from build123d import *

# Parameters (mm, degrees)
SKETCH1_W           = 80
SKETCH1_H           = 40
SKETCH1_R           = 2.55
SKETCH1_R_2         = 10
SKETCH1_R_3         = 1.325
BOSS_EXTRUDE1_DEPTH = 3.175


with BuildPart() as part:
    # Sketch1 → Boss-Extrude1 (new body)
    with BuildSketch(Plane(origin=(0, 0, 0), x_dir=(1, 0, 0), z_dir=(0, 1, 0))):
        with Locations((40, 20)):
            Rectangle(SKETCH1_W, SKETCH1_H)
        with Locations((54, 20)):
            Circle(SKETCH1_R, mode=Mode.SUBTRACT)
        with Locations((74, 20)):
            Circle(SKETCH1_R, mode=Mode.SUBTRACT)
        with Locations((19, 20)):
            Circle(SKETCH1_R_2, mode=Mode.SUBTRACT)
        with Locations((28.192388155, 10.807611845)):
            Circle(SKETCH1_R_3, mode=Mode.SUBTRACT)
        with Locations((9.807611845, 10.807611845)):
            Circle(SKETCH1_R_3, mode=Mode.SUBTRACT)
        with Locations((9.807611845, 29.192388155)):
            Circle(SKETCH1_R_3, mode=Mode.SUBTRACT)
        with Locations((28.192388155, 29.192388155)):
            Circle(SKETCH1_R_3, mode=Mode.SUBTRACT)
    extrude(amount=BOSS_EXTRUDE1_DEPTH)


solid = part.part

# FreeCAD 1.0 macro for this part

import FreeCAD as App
import Part
import Sketcher

V = App.Vector
Q = App.Units.Quantity


def add_polygon(sketch, points):
    """Adds a closed chain of lines whose ends are joined by coincident constraints."""
    first, n = sketch.GeometryCount, len(points)
    for a, b in zip(points, points[1:] + points[:1]):
        sketch.addGeometry(Part.LineSegment(App.Vector(*a, 0), App.Vector(*b, 0)), False)
    for i in range(n):
        sketch.addConstraint(Sketcher.Constraint("Coincident", first + i, 2, first + (i + 1) % n, 1))

doc = App.newDocument("Part")
body = doc.addObject("PartDesign::Body", "Body")

sketch1 = body.newObject("Sketcher::SketchObject", "Sketch")
sketch1.AttachmentSupport = (doc.getObject("XZ_Plane"), [""])
sketch1.MapMode = "FlatFace"
add_polygon(sketch1, [(0, -40), (0, 0), (80, 0), (80, -40)])
sketch1.addGeometry(Part.Circle(V(9.807612, -10.807612, 0), V(0, 0, 1), 1.325), False)
sketch1.addGeometry(Part.Circle(V(28.192388, -10.807612, 0), V(0, 0, 1), 1.325), False)
sketch1.addGeometry(Part.Circle(V(19, -20, 0), V(0, 0, 1), 10), False)
sketch1.addGeometry(Part.Circle(V(9.807612, -29.192388, 0), V(0, 0, 1), 1.325), False)
sketch1.addGeometry(Part.Circle(V(28.192388, -29.192388, 0), V(0, 0, 1), 1.325), False)
sketch1.addGeometry(Part.Circle(V(54, -20, 0), V(0, 0, 1), 2.55), False)
sketch1.addGeometry(Part.Circle(V(74, -20, 0), V(0, 0, 1), 2.55), False)
sketch1.addConstraint(Sketcher.Constraint("Vertical", 0))
sketch1.addConstraint(Sketcher.Constraint("Horizontal", 1))
sketch1.addConstraint(Sketcher.Constraint("Vertical", 2))
sketch1.addConstraint(Sketcher.Constraint("Horizontal", 3))
sketch1.addConstraint(Sketcher.Constraint("Coincident", 0, 2, -1, 1))
sketch1.addConstraint(Sketcher.Constraint("Equal", 4, 5))
sketch1.addConstraint(Sketcher.Constraint("Equal", 5, 7))
sketch1.addConstraint(Sketcher.Constraint("Equal", 7, 8))
sketch1.addConstraint(Sketcher.Constraint("Equal", 9, 10))
sketch1.addConstraint(Sketcher.Constraint("Horizontal", 4, 3, 5, 3))
sketch1.addConstraint(Sketcher.Constraint("Horizontal", 7, 3, 8, 3))
sketch1.addConstraint(Sketcher.Constraint("Horizontal", 6, 3, 9, 3))
sketch1.addConstraint(Sketcher.Constraint("Horizontal", 9, 3, 10, 3))
sketch1.addConstraint(Sketcher.Constraint("Vertical", 4, 3, 7, 3))
sketch1.addConstraint(Sketcher.Constraint("Vertical", 5, 3, 8, 3))
sketch1.addConstraint(Sketcher.Constraint("Diameter", 6, Q("20 mm")))
sketch1.addConstraint(Sketcher.Constraint("Diameter", 9, Q("5.1 mm")))
sketch1.addConstraint(Sketcher.Constraint("Diameter", 4, Q("2.65 mm")))
sketch1.addConstraint(Sketcher.Constraint("DistanceX", 1, 1, 1, 2, Q("80 mm")))
sketch1.addConstraint(Sketcher.Constraint("DistanceY", 0, 1, 0, 2, Q("40 mm")))
sketch1.addConstraint(Sketcher.Constraint("DistanceX", -1, 1, 6, 3, Q("19 mm")))
sketch1.addConstraint(Sketcher.Constraint("DistanceY", 6, 3, -1, 1, Q("20 mm")))
sketch1.addConstraint(Sketcher.Constraint("DistanceX", -1, 1, 9, 3, Q("54 mm")))
sketch1.addConstraint(Sketcher.Constraint("DistanceX", -1, 1, 10, 3, Q("74 mm")))
sketch1.addConstraint(Sketcher.Constraint("DistanceX", -1, 1, 4, 3, Q("9.807612 mm")))
sketch1.addConstraint(Sketcher.Constraint("DistanceY", 4, 3, -1, 1, Q("10.807612 mm")))
sketch1.addConstraint(Sketcher.Constraint("DistanceX", -1, 1, 5, 3, Q("28.192388 mm")))
sketch1.addConstraint(Sketcher.Constraint("DistanceY", 7, 3, -1, 1, Q("29.192388 mm")))
pad1 = body.newObject("PartDesign::Pad", "Pad")
pad1.Profile = sketch1
pad1.Length = 3.175
pad1.Reversed = True

doc.recompute()
